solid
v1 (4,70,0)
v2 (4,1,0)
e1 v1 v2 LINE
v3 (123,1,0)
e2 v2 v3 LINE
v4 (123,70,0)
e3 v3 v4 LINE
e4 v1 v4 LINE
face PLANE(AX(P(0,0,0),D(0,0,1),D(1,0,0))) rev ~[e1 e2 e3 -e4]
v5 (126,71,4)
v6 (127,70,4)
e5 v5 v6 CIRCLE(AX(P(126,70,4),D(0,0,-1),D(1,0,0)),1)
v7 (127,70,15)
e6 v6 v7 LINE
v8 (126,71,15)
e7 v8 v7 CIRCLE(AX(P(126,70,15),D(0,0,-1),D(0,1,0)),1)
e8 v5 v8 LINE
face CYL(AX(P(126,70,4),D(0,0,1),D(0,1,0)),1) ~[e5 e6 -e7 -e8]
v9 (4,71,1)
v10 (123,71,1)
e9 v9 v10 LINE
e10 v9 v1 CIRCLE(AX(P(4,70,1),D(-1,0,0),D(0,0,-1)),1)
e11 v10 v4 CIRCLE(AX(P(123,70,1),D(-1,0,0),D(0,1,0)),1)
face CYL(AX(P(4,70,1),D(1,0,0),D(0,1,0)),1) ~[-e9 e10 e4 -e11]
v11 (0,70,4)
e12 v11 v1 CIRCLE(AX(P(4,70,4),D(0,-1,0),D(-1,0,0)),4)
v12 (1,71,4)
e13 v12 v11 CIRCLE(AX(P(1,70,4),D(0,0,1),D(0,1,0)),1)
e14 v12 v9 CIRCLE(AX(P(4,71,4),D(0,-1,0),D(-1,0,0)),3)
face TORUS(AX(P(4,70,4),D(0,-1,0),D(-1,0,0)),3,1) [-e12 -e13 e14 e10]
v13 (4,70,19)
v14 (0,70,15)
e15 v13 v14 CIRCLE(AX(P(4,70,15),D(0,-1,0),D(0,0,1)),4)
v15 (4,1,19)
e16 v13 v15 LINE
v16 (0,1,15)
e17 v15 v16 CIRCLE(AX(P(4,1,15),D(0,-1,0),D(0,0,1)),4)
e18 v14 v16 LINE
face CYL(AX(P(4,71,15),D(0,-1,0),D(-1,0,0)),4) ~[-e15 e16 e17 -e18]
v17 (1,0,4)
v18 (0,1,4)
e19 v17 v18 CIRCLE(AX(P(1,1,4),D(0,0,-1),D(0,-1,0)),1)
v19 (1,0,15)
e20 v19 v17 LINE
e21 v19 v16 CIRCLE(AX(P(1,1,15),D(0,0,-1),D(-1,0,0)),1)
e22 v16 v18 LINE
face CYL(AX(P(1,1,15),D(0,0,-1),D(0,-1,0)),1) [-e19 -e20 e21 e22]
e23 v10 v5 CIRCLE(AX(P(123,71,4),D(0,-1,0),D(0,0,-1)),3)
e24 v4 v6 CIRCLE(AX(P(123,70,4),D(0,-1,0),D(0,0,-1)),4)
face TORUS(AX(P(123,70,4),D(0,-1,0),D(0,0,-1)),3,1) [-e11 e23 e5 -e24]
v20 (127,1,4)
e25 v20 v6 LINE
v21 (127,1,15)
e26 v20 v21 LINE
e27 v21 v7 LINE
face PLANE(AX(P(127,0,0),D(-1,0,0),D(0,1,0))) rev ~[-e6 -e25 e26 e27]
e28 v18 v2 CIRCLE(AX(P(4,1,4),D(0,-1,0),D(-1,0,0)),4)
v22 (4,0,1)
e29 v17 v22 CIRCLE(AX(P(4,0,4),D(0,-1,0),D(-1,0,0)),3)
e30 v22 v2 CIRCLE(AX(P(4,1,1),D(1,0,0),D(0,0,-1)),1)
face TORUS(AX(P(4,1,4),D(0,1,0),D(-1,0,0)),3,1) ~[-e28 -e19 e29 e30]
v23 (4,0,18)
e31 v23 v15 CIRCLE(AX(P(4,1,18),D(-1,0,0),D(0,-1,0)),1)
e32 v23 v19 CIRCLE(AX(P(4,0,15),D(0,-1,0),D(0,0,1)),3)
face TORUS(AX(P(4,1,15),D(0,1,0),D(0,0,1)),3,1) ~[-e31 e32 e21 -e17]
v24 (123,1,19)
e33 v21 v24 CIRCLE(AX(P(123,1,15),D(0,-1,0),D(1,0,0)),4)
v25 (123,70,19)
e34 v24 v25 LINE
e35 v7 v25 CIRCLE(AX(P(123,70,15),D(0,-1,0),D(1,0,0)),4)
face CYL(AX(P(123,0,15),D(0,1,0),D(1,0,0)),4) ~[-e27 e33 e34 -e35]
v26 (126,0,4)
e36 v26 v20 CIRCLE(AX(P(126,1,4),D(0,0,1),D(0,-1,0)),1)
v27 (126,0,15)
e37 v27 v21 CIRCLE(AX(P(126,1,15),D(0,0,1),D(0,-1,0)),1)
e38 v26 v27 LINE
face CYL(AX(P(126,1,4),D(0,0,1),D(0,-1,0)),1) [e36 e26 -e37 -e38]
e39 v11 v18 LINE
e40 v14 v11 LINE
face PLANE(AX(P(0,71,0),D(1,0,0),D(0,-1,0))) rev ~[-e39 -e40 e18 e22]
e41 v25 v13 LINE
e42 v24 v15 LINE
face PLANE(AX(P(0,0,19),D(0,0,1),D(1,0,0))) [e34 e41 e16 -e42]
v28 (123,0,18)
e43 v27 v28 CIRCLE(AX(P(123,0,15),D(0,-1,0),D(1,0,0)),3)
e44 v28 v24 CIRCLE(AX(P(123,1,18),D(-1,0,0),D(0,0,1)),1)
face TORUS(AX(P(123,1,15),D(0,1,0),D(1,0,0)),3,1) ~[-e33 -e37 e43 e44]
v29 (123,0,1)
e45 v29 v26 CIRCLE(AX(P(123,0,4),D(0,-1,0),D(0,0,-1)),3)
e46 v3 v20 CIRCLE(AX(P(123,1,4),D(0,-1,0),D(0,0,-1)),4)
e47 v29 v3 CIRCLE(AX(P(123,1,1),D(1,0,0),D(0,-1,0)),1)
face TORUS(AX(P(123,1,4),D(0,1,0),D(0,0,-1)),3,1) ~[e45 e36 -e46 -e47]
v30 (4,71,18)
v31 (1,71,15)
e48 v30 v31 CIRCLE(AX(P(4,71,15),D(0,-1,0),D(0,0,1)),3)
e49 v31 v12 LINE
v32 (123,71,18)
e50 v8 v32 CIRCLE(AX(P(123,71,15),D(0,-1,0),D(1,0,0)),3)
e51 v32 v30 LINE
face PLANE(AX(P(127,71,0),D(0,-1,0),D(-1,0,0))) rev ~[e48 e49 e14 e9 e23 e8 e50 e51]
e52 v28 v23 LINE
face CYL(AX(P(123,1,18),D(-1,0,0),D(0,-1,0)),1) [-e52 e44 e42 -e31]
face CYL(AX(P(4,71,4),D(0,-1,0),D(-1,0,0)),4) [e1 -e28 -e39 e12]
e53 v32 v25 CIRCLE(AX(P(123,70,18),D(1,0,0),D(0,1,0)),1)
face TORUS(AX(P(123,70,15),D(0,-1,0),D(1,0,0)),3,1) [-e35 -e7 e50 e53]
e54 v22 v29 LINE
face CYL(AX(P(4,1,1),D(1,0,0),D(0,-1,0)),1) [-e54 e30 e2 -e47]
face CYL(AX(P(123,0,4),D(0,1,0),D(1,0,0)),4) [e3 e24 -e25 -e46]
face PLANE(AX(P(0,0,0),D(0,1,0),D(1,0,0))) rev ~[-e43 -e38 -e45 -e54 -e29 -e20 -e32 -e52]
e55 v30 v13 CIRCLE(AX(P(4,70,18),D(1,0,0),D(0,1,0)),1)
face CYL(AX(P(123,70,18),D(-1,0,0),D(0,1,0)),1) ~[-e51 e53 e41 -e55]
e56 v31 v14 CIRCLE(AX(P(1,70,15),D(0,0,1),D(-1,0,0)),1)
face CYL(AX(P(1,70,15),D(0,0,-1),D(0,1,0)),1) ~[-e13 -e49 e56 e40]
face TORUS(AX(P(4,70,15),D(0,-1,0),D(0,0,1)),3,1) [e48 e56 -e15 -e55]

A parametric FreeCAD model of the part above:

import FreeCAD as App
import Part
import Sketcher


def edges_at(feature, points):
    """Names of the edges that pass closest to the given points."""
    edges = feature.Shape.Edges
    near = lambda p: min(range(len(edges)), key=lambda i: edges[i].distToShape(Part.Vertex(*p))[0])
    return sorted({f"Edge{near(p) + 1}" for p in points})

doc = App.newDocument("Part")
body = doc.addObject("PartDesign::Body", "Body")

sketch1 = body.newObject("Sketcher::SketchObject", "Sketch")
sketch1.AttachmentSupport = (doc.getObject("XY_Plane"), [""])
sketch1.MapMode = "FlatFace"
sketch1.addGeometry(Part.LineSegment(App.Vector(0, 71, 0), App.Vector(0, 0, 0)), False)
sketch1.addGeometry(Part.LineSegment(App.Vector(0, 0, 0), App.Vector(127, 0, 0)), False)
sketch1.addGeometry(Part.LineSegment(App.Vector(127, 0, 0), App.Vector(127, 71, 0)), False)
sketch1.addGeometry(Part.LineSegment(App.Vector(127, 71, 0), App.Vector(0, 71, 0)), False)
sketch1.addConstraint(Sketcher.Constraint("Coincident", 0, 2, 1, 1))
sketch1.addConstraint(Sketcher.Constraint("Coincident", 1, 2, 2, 1))
sketch1.addConstraint(Sketcher.Constraint("Coincident", 2, 2, 3, 1))
sketch1.addConstraint(Sketcher.Constraint("Coincident", 3, 2, 0, 1))
sketch1.addConstraint(Sketcher.Constraint("Vertical", 0))
sketch1.addConstraint(Sketcher.Constraint("Horizontal", 1))
sketch1.addConstraint(Sketcher.Constraint("Vertical", 2))
sketch1.addConstraint(Sketcher.Constraint("Horizontal", 3))
sketch1.addConstraint(Sketcher.Constraint("Coincident", 0, 2, -1, 1))
sketch1.addConstraint(Sketcher.Constraint("DistanceX", 1, 1, 1, 2, 127.0))
sketch1.addConstraint(Sketcher.Constraint("DistanceY", 0, 2, 0, 1, 71.0))
pad1 = body.newObject("PartDesign::Pad", "Pad")
pad1.Profile = sketch1
pad1.Length = 19
doc.recompute()

fillet = body.newObject("PartDesign::Fillet", "Fillet")
fillet.Base = (pad1, edges_at(pad1, [
    (127, 35.5, 19),
    (127, 35.5, 0),
    (0, 35.5, 19),
    (0, 35.5, 0),
]))
fillet.Radius = 4
doc.recompute()

fillet2 = body.newObject("PartDesign::Fillet", "Fillet001")
fillet2.Base = (fillet, edges_at(fillet, [
    (63.5, 71, 19),
    (1.172, 71, 17.828),
    (0, 71, 9.5),
    (1.172, 71, 1.172),
    (63.5, 71, 0),
    (125.828, 71, 1.172),
    (127, 71, 9.5),
    (125.828, 71, 17.828),
    (127, 0, 9.5),
    (125.828, 0, 1.172),
    (63.5, 0, 0),
    (1.172, 0, 1.172),
    (0, 0, 9.5),
    (1.172, 0, 17.828),
    (63.5, 0, 19),
    (125.828, 0, 17.828),
]))
fillet2.Radius = 1

doc.recompute()
